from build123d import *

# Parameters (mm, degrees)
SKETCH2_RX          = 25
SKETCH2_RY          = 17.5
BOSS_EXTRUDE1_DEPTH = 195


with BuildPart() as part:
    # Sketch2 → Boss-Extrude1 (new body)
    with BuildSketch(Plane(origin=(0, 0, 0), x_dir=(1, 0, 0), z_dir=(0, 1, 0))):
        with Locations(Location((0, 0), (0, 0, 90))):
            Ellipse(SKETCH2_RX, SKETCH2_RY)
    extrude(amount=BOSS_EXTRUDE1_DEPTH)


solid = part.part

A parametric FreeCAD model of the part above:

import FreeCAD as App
import Part
import Sketcher

V = App.Vector

doc = App.newDocument("Part")
params = doc.addObject("Spreadsheet::Sheet", "Params")
for row, (alias, value) in enumerate([
    ("pad1_length", "195 mm"),
], start=1):
    params.set(f"A{row}", alias)
    params.set(f"B{row}", "=" + value)
    params.setAlias(f"B{row}", alias)

body = doc.addObject("PartDesign::Body", "Body")

# Sketch on XZ plane
sketch1 = body.newObject("Sketcher::SketchObject", "Sketch")
sketch1.AttachmentSupport = (doc.getObject("XZ_Plane"), [""])
sketch1.MapMode = "FlatFace"
sketch1.addGeometry(Part.Ellipse(V(0, -25, 0), V(17.5, 0, 0), V(0, 0, 0)), False)
sketch1.addConstraint(Sketcher.Constraint("Block", 0))
pad1 = body.newObject("PartDesign::Pad", "Pad")
pad1.Profile = sketch1
pad1.setExpression("Length", "Params.pad1_length")
pad1.Reversed = True

doc.recompute()
